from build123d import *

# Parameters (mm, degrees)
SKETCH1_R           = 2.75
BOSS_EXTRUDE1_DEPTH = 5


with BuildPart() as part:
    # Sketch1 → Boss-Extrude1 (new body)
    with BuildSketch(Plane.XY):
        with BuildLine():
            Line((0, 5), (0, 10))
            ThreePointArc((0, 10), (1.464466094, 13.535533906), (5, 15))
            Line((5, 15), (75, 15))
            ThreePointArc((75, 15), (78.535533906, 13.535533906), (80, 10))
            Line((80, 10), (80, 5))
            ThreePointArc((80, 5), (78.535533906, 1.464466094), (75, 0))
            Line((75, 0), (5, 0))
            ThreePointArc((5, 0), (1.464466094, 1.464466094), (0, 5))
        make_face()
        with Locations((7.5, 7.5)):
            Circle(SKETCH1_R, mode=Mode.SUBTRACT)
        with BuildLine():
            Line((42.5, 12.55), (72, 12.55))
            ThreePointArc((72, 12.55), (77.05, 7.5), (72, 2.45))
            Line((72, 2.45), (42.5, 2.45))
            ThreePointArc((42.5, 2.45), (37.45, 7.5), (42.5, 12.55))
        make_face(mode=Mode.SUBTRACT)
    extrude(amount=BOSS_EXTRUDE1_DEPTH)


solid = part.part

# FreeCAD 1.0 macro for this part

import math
import FreeCAD as App
import Part
import Sketcher
from FreeCAD import Vector

doc = App.newDocument("Part")
params = doc.addObject("Spreadsheet::Sheet", "Params")
for row, (alias, value) in enumerate([
    ("sketch1_radius", "5 mm"),
    ("sketch1_diameter", "5.5 mm"),
    ("sketch1_width", "70 mm"),
    ("sketch1_height", "5 mm"),
    ("sketch1_radius2", "5.05 mm"),
    ("pad1_length", "5 mm"),
], start=1):
    params.set(f"A{row}", alias)
    params.set(f"B{row}", "=" + value)
    params.setAlias(f"B{row}", alias)

body = doc.addObject("PartDesign::Body", "Body")

sketch1 = body.newObject("Sketcher::SketchObject", "Sketch")
sketch1.AttachmentSupport = (doc.getObject("XY_Plane"), [""])
sketch1.MapMode = "FlatFace"
sketch1.addGeometry([
    Part.LineSegment(Vector(0, 10, 0), Vector(0, 5, 0)),
    Part.ArcOfCircle(Part.Circle(Vector(5, 5, 0), Vector(0, 0, 1), 5), math.radians(180), math.radians(270)),
    Part.LineSegment(Vector(5, 0, 0), Vector(75, 0, 0)),
    Part.ArcOfCircle(Part.Circle(Vector(75, 5, 0), Vector(0, 0, 1), 5), math.radians(-90), math.radians(0)),
    Part.LineSegment(Vector(80, 5, 0), Vector(80, 10, 0)),
    Part.ArcOfCircle(Part.Circle(Vector(75, 10, 0), Vector(0, 0, 1), 5), math.radians(0), math.radians(90)),
    Part.LineSegment(Vector(75, 15, 0), Vector(5, 15, 0)),
    Part.ArcOfCircle(Part.Circle(Vector(5, 10, 0), Vector(0, 0, 1), 5), math.radians(90), math.radians(180)),
    Part.LineSegment(Vector(42.5, 12.6, 0), Vector(72, 12.6, 0)),
    Part.ArcOfCircle(Part.Circle(Vector(72, 7.5, 0), Vector(0, 0, 1), 5), math.radians(-90), math.radians(90)),
    Part.LineSegment(Vector(72, 2.5, 0), Vector(42.5, 2.5, 0)),
    Part.ArcOfCircle(Part.Circle(Vector(42.5, 7.5, 0), Vector(0, 0, 1), 5), math.radians(90), math.radians(270)),
    Part.Circle(Vector(7.5, 7.5, 0), Vector(0, 0, 1), 2.8),
], False)
sketch1.addConstraint([
    Sketcher.Constraint("Tangent", 0, 2, 1, 1),
    Sketcher.Constraint("Tangent", 1, 2, 2, 1),
    Sketcher.Constraint("Tangent", 2, 2, 3, 1),
    Sketcher.Constraint("Tangent", 3, 2, 4, 1),
    Sketcher.Constraint("Tangent", 4, 2, 5, 1),
    Sketcher.Constraint("Tangent", 5, 2, 6, 1),
    Sketcher.Constraint("Tangent", 6, 2, 7, 1),
    Sketcher.Constraint("Tangent", 7, 2, 0, 1),
    Sketcher.Constraint("Tangent", 8, 2, 9, 2),
    Sketcher.Constraint("Tangent", 9, 1, 10, 1),
    Sketcher.Constraint("Tangent", 10, 2, 11, 2),
    Sketcher.Constraint("Tangent", 11, 1, 8, 1),
    Sketcher.Constraint("Vertical", 0),
    Sketcher.Constraint("Horizontal", 2),
    Sketcher.Constraint("Vertical", 4),
    Sketcher.Constraint("Horizontal", 6),
    Sketcher.Constraint("Horizontal", 8),
    Sketcher.Constraint("Horizontal", 10),
    Sketcher.Constraint("Equal", 1, 3),
    Sketcher.Constraint("Equal", 3, 5),
    Sketcher.Constraint("Equal", 5, 7),
    Sketcher.Constraint("PointOnObject", 0, 2, -2),
    Sketcher.Constraint("PointOnObject", 1, 2, -1),
    Sketcher.Constraint("Horizontal", 11, 3, 12, 3),
    Sketcher.Constraint("Radius", 1, 5.0),
    Sketcher.Constraint("Diameter", 12, 5.5),
    Sketcher.Constraint("DistanceX", 2, 1, 2, 2, 70.0),
    Sketcher.Constraint("DistanceY", 0, 2, 0, 1, 5.0),
    Sketcher.Constraint("Radius", 9, 5.05),
    Sketcher.Constraint("DistanceX", 8, 1, 8, 2, 29.5),
    Sketcher.Constraint("DistanceX", -1, 1, 9, 3, 72.0),
    Sketcher.Constraint("DistanceX", 12, 3, 11, 3, 35.0),
    Sketcher.Constraint("DistanceY", -1, 1, 9, 3, 7.5),
])
sketch1.setExpression("Constraints[24]", "Params.sketch1_radius")
sketch1.setExpression("Constraints[25]", "Params.sketch1_diameter")
sketch1.setExpression("Constraints[26]", "Params.sketch1_width")
sketch1.setExpression("Constraints[27]", "Params.sketch1_height")
sketch1.setExpression("Constraints[28]", "Params.sketch1_radius2")
pad1 = body.newObject("PartDesign::Pad", "Pad")
pad1.Profile = sketch1
pad1.setExpression("Length", "Params.pad1_length")

doc.recompute()
